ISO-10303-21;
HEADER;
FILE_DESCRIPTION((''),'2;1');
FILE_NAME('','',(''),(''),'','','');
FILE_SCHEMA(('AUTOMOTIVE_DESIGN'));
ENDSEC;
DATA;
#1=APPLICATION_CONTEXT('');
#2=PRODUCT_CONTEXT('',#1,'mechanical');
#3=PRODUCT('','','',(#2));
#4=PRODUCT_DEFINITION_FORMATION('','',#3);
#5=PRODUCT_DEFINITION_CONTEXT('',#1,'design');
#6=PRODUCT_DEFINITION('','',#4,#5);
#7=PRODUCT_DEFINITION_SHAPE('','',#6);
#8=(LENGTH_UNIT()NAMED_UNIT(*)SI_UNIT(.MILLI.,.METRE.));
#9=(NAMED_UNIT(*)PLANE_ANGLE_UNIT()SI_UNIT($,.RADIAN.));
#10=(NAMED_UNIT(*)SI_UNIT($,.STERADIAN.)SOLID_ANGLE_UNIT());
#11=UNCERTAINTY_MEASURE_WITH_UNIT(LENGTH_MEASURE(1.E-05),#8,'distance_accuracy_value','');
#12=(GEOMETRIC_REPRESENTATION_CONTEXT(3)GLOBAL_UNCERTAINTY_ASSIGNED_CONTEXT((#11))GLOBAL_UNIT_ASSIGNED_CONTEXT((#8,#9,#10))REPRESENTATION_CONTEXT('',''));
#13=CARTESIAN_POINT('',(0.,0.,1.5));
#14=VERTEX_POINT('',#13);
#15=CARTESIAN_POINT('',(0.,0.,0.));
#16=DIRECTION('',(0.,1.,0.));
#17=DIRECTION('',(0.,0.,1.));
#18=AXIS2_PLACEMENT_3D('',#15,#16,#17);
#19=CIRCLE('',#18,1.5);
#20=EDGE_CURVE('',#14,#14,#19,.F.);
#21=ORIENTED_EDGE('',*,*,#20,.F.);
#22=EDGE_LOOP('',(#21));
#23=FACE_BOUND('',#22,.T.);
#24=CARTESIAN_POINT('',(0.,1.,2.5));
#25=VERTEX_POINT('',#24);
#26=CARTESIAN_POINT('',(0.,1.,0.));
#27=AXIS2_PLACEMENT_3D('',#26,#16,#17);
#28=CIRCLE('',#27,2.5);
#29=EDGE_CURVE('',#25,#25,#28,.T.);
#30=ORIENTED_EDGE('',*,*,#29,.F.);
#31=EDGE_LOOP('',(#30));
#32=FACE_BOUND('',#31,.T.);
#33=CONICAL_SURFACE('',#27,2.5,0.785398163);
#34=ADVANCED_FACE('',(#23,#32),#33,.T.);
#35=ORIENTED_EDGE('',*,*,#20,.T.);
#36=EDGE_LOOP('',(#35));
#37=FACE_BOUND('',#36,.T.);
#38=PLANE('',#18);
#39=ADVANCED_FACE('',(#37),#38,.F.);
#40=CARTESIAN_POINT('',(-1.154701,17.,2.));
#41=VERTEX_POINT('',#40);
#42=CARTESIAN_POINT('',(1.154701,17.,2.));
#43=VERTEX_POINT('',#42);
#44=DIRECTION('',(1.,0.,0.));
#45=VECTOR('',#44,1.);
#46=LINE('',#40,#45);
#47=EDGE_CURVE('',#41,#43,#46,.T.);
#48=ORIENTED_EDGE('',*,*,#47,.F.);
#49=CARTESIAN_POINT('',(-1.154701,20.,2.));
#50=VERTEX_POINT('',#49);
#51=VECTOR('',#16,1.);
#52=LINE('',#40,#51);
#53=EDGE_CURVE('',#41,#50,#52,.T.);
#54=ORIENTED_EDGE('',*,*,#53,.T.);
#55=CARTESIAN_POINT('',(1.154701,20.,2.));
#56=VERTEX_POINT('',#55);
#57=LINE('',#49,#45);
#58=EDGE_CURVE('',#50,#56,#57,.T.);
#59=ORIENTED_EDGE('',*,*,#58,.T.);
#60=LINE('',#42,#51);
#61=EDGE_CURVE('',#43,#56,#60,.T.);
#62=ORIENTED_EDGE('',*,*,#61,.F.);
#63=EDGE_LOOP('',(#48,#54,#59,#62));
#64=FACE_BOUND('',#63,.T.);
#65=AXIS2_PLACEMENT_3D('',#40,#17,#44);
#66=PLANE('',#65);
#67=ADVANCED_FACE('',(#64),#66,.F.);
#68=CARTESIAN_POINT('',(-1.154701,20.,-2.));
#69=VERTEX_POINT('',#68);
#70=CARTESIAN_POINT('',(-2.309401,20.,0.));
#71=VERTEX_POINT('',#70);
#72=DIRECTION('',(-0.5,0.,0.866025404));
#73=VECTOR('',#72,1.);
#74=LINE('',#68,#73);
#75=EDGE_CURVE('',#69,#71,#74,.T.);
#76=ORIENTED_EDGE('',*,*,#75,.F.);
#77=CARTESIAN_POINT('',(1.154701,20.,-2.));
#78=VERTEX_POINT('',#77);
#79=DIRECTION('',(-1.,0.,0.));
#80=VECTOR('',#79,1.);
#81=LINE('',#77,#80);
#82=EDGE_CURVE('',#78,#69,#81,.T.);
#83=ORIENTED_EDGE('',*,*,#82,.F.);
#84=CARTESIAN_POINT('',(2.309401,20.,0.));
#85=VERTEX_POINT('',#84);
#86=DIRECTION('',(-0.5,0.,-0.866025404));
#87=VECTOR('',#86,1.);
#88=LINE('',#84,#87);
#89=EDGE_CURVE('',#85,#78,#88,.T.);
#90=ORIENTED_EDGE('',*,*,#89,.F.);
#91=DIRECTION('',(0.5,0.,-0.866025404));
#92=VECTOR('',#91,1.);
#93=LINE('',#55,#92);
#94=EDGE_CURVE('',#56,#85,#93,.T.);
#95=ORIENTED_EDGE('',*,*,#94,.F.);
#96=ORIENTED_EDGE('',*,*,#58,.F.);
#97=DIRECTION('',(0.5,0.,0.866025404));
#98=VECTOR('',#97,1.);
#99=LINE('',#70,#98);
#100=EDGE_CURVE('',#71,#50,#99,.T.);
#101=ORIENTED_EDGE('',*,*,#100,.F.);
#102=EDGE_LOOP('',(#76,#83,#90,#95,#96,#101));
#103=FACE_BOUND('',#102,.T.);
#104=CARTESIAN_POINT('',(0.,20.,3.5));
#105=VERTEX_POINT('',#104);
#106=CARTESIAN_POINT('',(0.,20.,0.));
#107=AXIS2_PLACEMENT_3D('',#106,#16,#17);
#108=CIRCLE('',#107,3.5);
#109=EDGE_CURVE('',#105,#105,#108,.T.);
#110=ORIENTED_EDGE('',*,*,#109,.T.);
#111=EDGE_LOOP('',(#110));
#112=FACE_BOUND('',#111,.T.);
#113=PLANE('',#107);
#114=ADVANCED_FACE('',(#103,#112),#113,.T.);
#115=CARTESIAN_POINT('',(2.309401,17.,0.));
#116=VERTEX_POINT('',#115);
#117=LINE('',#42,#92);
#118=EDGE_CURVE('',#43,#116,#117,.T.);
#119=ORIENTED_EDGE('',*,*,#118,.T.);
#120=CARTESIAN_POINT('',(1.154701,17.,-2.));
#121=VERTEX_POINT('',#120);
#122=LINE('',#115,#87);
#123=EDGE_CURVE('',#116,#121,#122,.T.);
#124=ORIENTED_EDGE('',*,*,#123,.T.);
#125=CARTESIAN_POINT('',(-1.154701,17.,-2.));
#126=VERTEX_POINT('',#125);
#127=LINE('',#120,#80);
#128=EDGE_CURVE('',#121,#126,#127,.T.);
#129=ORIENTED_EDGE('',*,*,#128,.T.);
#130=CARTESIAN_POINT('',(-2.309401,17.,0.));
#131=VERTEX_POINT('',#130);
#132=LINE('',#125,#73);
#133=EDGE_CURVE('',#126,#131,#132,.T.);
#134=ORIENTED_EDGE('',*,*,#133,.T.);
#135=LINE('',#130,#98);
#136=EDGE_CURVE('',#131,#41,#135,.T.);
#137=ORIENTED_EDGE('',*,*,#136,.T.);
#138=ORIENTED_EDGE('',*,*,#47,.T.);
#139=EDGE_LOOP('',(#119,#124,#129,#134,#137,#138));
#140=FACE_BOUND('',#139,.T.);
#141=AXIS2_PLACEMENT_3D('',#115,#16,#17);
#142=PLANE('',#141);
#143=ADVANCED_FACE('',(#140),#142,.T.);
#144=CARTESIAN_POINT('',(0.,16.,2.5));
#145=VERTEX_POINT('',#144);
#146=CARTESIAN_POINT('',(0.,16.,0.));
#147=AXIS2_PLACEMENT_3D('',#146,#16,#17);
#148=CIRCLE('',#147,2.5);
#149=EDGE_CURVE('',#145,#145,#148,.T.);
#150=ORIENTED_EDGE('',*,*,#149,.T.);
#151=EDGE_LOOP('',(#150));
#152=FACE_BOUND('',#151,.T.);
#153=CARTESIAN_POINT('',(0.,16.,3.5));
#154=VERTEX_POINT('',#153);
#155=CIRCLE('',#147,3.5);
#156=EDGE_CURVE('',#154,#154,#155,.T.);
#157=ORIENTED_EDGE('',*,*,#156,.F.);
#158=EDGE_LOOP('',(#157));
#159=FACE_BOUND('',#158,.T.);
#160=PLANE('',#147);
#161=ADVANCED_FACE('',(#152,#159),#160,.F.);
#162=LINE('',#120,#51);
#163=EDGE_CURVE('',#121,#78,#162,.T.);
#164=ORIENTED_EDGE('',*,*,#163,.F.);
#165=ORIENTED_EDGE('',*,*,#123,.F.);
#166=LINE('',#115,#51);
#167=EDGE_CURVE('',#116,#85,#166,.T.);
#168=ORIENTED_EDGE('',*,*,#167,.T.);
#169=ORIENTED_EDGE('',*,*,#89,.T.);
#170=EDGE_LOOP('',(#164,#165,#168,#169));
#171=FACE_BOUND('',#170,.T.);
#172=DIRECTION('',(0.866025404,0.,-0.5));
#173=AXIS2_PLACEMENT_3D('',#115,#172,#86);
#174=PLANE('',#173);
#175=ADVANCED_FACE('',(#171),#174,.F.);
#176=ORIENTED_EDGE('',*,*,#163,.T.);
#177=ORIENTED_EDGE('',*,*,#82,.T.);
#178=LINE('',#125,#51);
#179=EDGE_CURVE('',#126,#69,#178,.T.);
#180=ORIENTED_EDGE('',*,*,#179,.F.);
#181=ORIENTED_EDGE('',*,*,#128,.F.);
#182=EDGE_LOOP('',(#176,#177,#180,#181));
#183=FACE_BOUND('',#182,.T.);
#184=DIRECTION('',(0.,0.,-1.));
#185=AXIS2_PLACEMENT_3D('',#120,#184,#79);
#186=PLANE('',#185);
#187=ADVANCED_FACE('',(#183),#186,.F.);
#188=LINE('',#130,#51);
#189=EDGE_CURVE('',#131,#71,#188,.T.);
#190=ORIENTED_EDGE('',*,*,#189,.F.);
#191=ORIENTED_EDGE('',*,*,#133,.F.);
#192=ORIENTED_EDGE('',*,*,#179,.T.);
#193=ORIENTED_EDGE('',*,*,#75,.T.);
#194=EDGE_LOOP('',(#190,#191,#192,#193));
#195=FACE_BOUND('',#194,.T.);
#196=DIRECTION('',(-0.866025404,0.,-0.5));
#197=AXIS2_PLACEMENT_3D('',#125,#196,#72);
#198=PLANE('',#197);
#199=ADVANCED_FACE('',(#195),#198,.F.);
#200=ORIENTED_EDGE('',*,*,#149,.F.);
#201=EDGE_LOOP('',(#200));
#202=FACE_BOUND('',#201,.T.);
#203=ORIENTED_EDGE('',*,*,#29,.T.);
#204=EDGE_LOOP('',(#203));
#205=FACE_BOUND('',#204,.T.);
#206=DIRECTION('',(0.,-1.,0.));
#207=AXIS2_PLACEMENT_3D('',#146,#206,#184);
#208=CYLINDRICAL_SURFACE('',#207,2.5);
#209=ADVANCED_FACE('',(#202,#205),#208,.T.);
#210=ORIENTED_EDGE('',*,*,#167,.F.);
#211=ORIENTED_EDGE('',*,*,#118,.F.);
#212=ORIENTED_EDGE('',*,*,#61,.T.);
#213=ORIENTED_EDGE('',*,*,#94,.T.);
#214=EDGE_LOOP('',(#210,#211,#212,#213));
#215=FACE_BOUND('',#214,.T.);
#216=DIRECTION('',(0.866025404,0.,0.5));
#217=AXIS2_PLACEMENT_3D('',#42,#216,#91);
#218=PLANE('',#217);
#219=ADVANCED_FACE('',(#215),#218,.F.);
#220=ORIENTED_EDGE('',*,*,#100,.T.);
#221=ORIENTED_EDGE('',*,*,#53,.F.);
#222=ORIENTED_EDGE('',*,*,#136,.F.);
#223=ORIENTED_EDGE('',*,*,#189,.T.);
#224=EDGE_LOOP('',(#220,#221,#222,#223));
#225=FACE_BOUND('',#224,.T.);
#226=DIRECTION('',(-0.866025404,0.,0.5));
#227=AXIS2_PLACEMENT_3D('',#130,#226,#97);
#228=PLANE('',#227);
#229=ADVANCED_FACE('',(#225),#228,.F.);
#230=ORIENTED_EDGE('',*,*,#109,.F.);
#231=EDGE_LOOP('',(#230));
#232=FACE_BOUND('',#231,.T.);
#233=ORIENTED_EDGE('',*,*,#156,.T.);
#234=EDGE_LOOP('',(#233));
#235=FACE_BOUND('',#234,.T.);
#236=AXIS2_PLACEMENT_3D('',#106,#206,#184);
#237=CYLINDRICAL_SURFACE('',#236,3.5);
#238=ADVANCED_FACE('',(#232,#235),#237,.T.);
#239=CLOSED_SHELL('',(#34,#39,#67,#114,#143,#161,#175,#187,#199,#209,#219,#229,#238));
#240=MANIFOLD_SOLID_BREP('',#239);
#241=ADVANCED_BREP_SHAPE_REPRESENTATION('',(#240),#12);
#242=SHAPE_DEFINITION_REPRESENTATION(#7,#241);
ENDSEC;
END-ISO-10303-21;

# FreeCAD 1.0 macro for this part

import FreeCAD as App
import Part
import Sketcher

V = App.Vector
Q = App.Units.Quantity


def edges_at(feature, points):
    """Names of the edges that pass closest to the given points."""
    edges = feature.Shape.Edges
    near = lambda p: min(range(len(edges)), key=lambda i: edges[i].distToShape(Part.Vertex(*p))[0])
    return sorted({f"Edge{near(p) + 1}" for p in points})

doc = App.newDocument("Part")
body = doc.addObject("PartDesign::Body", "Body")

sketch1 = doc.addObject("Sketcher::SketchObject", "Sketch")
body.addObject(sketch1)
sketch1.AttachmentSupport = (doc.XZ_Plane, [""])
sketch1.MapMode = "FlatFace"
sketch1.addGeometry(Part.Circle(V(0, 0, 0), V(0, 0, 1), 2.5), False)
sketch1.addConstraint(Sketcher.Constraint("Coincident", 0, 3, -1, 1))
sketch1.addConstraint(Sketcher.Constraint("Diameter", 0, Q("5 mm")))
pad1 = doc.addObject("PartDesign::Pad", "Pad")
body.addObject(pad1)
pad1.Profile = sketch1
pad1.Length = 16
pad1.Reversed = True

sketch2 = doc.addObject("Sketcher::SketchObject", "Sketch001")
body.addObject(sketch2)
sketch2.AttachmentSupport = (doc.XZ_Plane, [""])
sketch2.MapMode = "FlatFace"
sketch2.AttachmentOffset = App.Placement(V(0, 0, -16), App.Rotation())
sketch2.addGeometry(Part.Circle(V(0, 0, 0), V(0, 0, 1), 3.5), False)
sketch2.addConstraint(Sketcher.Constraint("Coincident", 0, 3, -1, 1))
sketch2.addConstraint(Sketcher.Constraint("Diameter", 0, Q("7 mm")))
pad2 = doc.addObject("PartDesign::Pad", "Pad001")
body.addObject(pad2)
pad2.Profile = sketch2
pad2.Length = 4
pad2.Reversed = True
doc.recompute()

chamfer = doc.addObject("PartDesign::Chamfer", "Chamfer")
body.addObject(chamfer)
chamfer.Base = (pad2, edges_at(pad2, [(0, 0, -2.5)]))
chamfer.Size = 1

sketch3 = doc.addObject("Sketcher::SketchObject", "Sketch002")
body.addObject(sketch3)
sketch3.AttachmentSupport = (doc.XZ_Plane, [""])
sketch3.MapMode = "FlatFace"
sketch3.AttachmentOffset = App.Placement(V(0, 0, -20), App.Rotation())
sketch3.addGeometry(Part.LineSegment(V(2.3, 0, 0), V(1.2, -2, 0)), False)
sketch3.addGeometry(Part.LineSegment(V(1.2, -2, 0), V(-1.2, -2, 0)), False)
sketch3.addGeometry(Part.LineSegment(V(-1.2, -2, 0), V(-2.3, 0, 0)), False)
sketch3.addGeometry(Part.LineSegment(V(-2.3, 0, 0), V(-1.2, 2, 0)), False)
sketch3.addGeometry(Part.LineSegment(V(-1.2, 2, 0), V(1.2, 2, 0)), False)
sketch3.addGeometry(Part.LineSegment(V(1.2, 2, 0), V(2.3, 0, 0)), False)
sketch3.addConstraint(Sketcher.Constraint("Coincident", 0, 2, 1, 1))
sketch3.addConstraint(Sketcher.Constraint("Coincident", 1, 2, 2, 1))
sketch3.addConstraint(Sketcher.Constraint("Coincident", 2, 2, 3, 1))
sketch3.addConstraint(Sketcher.Constraint("Coincident", 3, 2, 4, 1))
sketch3.addConstraint(Sketcher.Constraint("Coincident", 4, 2, 5, 1))
sketch3.addConstraint(Sketcher.Constraint("Coincident", 5, 2, 0, 1))
sketch3.addConstraint(Sketcher.Constraint("Horizontal", 1))
sketch3.addConstraint(Sketcher.Constraint("Horizontal", 4))
sketch3.addConstraint(Sketcher.Constraint("Symmetric", 0, 2, 3, 2, -1, 1))
sketch3.addConstraint(Sketcher.Constraint("Symmetric", 2, 2, 5, 2, -1, 1))
sketch3.addConstraint(Sketcher.Constraint("PointOnObject", 2, 2, -1))
sketch3.addConstraint(Sketcher.Constraint("Parallel", 2, 5))
sketch3.addConstraint(Sketcher.Constraint("Vertical", 1, 2, 3, 2))
sketch3.addConstraint(Sketcher.Constraint("Angle", 0, Q("-120 deg")))
sketch3.addConstraint(Sketcher.Constraint("DistanceY", 0, 2, -1, 1, Q("2 mm")))
sketch3.addConstraint(Sketcher.Constraint("DistanceX", 1, 2, 1, 1, Q("2.309401 mm")))
pocket1 = doc.addObject("PartDesign::Pocket", "Pocket")
body.addObject(pocket1)
pocket1.Profile = sketch3
pocket1.Length = 3
pocket1.Reversed = True

doc.recompute()
